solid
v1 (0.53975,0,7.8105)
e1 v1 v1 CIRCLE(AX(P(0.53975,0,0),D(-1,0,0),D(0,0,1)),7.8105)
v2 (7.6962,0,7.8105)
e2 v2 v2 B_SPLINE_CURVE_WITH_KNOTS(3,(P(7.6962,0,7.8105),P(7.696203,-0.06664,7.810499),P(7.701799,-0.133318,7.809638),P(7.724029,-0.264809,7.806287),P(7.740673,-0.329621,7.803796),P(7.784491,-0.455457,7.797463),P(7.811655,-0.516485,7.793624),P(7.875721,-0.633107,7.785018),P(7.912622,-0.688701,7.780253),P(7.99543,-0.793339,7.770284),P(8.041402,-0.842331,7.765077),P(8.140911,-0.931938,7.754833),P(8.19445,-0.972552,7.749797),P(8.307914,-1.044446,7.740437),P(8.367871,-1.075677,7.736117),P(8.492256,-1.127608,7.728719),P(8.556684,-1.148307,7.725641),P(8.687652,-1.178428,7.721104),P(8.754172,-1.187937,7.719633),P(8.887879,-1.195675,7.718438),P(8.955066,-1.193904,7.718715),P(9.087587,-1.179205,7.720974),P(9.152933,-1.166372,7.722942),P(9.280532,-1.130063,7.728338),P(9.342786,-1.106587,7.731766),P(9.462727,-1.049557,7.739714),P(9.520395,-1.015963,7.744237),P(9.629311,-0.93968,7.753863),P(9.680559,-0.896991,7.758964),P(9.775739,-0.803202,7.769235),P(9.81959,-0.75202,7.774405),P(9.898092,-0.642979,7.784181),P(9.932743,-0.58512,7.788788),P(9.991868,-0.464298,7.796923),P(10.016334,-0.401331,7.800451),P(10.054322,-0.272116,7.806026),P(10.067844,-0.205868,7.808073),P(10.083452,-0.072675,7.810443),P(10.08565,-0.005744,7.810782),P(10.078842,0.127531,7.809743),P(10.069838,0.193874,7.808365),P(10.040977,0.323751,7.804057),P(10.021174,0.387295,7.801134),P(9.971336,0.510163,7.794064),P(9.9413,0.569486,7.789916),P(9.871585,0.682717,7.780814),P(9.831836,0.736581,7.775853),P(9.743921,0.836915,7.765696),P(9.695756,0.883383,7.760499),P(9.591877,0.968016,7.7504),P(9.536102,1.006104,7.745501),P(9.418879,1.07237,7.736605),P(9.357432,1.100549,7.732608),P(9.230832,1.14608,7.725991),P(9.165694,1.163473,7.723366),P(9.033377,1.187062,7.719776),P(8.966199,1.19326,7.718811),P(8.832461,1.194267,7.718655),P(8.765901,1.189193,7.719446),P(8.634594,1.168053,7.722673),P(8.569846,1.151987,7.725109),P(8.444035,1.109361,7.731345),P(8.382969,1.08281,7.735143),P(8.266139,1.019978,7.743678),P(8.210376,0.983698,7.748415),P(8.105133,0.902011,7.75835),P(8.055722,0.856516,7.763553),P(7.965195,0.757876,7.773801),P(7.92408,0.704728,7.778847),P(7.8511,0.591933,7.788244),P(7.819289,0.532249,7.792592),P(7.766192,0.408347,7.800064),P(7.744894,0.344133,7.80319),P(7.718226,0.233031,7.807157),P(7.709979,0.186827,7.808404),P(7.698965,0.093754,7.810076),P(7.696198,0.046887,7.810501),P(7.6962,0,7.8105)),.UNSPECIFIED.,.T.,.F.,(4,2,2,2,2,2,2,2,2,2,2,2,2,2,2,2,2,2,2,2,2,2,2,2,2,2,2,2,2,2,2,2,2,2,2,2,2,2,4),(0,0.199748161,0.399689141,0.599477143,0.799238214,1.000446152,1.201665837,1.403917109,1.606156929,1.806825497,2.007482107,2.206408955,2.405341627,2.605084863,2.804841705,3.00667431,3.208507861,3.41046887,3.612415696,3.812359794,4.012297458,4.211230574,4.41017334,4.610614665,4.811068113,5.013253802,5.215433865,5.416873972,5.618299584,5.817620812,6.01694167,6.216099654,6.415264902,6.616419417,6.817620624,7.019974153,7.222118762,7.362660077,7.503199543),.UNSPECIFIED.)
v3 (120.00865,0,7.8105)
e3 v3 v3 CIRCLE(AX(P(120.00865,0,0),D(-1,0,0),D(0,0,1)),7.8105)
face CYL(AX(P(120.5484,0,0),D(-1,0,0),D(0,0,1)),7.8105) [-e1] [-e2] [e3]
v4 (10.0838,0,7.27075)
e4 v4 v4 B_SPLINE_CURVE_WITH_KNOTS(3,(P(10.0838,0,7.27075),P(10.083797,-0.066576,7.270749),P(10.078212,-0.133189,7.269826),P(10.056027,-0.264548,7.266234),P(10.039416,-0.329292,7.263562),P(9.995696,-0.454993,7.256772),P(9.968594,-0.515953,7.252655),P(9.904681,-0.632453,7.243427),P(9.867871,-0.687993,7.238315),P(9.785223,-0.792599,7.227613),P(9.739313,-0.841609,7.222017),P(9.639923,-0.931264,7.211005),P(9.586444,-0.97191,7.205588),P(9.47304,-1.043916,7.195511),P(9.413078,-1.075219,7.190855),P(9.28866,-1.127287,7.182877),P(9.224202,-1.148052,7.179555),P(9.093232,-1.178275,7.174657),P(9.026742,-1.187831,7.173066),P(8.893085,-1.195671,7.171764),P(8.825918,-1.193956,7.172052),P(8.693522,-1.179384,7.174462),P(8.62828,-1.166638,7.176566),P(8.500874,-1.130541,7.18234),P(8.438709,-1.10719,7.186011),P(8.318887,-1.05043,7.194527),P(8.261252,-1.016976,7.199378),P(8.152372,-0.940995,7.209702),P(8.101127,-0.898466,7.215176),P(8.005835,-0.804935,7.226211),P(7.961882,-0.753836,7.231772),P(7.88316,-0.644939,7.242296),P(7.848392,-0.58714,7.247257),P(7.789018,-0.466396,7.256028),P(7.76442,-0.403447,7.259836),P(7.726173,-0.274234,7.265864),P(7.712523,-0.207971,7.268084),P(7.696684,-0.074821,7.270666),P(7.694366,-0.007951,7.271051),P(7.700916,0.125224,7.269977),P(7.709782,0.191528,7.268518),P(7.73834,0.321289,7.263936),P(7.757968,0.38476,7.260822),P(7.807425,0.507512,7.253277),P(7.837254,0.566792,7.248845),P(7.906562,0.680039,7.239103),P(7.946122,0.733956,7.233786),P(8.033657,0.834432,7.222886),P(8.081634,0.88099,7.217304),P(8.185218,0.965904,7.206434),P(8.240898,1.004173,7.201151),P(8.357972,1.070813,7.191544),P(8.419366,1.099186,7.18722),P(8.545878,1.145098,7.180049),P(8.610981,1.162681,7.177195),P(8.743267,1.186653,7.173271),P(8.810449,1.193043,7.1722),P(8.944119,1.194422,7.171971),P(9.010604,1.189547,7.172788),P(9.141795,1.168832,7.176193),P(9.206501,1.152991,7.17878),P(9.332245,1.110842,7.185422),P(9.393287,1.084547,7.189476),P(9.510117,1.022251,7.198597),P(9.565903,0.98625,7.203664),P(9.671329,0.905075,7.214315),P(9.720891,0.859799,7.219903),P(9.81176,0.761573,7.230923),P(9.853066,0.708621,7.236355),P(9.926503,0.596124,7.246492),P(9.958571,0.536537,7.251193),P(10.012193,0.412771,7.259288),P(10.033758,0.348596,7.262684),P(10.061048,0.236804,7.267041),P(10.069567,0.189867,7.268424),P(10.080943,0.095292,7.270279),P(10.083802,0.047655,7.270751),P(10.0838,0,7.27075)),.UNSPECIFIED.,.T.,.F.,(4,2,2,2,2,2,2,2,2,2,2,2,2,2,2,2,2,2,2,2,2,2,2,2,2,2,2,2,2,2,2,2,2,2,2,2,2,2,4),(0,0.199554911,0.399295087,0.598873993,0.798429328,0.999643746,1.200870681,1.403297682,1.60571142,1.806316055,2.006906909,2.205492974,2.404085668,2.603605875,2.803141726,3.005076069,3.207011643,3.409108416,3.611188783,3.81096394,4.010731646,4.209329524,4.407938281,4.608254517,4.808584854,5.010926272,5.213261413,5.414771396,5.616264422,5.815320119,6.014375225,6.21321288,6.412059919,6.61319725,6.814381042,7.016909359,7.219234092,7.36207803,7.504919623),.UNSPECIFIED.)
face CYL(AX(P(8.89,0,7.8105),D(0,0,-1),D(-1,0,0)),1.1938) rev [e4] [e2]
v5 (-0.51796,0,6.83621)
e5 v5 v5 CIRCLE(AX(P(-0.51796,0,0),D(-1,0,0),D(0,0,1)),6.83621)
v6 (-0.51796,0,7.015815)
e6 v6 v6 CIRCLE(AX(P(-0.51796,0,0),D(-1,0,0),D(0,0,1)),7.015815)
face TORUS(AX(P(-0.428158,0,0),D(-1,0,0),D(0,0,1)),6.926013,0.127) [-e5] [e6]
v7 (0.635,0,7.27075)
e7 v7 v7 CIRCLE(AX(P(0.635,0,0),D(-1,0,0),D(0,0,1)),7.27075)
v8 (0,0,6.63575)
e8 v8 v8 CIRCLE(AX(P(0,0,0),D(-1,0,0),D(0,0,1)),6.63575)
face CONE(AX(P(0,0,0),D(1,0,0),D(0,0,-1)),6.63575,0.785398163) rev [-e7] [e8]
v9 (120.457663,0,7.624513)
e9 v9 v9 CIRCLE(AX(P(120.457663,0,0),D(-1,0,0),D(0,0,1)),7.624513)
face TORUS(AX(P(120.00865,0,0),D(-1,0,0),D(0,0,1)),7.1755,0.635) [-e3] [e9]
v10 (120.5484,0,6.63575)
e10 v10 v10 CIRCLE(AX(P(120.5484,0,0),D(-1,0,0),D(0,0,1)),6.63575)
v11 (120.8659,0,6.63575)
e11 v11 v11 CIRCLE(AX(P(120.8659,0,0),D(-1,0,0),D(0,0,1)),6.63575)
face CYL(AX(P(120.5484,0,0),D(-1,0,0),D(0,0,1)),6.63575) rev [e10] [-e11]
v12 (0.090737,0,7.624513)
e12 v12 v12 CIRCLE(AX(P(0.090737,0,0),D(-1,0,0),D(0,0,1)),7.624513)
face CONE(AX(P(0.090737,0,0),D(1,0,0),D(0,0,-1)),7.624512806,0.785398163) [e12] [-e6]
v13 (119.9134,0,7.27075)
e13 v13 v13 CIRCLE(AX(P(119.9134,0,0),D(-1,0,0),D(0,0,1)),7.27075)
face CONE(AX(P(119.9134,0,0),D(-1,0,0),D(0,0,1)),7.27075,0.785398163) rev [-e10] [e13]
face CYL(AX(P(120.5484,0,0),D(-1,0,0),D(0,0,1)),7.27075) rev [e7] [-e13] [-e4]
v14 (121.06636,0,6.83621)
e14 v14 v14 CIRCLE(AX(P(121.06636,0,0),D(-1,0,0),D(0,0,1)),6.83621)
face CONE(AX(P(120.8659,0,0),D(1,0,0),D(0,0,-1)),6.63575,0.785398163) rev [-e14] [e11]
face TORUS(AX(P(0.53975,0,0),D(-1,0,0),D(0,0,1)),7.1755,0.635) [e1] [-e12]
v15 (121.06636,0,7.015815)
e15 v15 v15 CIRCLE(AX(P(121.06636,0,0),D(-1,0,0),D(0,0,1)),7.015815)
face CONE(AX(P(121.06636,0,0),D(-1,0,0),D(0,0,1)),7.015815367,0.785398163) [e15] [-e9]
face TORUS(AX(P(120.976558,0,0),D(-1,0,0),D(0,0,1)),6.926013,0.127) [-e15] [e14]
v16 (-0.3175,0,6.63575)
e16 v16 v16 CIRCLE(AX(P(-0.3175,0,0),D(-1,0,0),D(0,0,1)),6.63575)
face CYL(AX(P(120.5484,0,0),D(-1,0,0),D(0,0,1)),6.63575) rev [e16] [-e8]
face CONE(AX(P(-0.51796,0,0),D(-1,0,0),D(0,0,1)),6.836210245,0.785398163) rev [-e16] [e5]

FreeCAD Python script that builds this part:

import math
import FreeCAD as App
import Part
import Sketcher

V = App.Vector
Q = App.Units.Quantity

doc = App.newDocument("Part")
body = doc.addObject("PartDesign::Body", "Body")

# Sketch on XY plane
sketch1 = doc.addObject("Sketcher::SketchObject", "Sketch")
body.addObject(sketch1)
sketch1.AttachmentSupport = (doc.XY_Plane, [""])
sketch1.MapMode = "FlatFace"
sketch1.addGeometry(Part.LineSegment(V(-0.52, 6.84, 0), V(-0.32, 6.64, 0)), False)
sketch1.addGeometry(Part.LineSegment(V(-0.32, 6.64, 0), V(0, 6.64, 0)), False)
sketch1.addGeometry(Part.LineSegment(V(0, 6.64, 0), V(0.64, 7.27, 0)), False)
sketch1.addGeometry(Part.LineSegment(V(0.64, 7.27, 0), V(119.91, 7.27, 0)), False)
sketch1.addGeometry(Part.LineSegment(V(119.91, 7.27, 0), V(120.55, 6.64, 0)), False)
sketch1.addGeometry(Part.LineSegment(V(120.55, 6.64, 0), V(120.87, 6.64, 0)), False)
sketch1.addGeometry(Part.LineSegment(V(120.87, 6.64, 0), V(121.07, 6.84, 0)), False)
sketch1.addGeometry(Part.ArcOfCircle(Part.Circle(V(120.98, 6.93, 0), V(0, 0, 1), 0.13), math.radians(-45), math.radians(45)), False)
sketch1.addGeometry(Part.LineSegment(V(121.07, 7.02, 0), V(120.46, 7.62, 0)), False)
sketch1.addGeometry(Part.ArcOfCircle(Part.Circle(V(120.01, 7.18, 0), V(0, 0, 1), 0.63), math.radians(45), math.radians(90)), False)
sketch1.addGeometry(Part.LineSegment(V(120.01, 7.81, 0), V(0.54, 7.81, 0)), False)
sketch1.addGeometry(Part.ArcOfCircle(Part.Circle(V(0.54, 7.18, 0), V(0, 0, 1), 0.63), math.radians(90), math.radians(135)), False)
sketch1.addGeometry(Part.LineSegment(V(0.09, 7.62, 0), V(-0.52, 7.02, 0)), False)
sketch1.addGeometry(Part.ArcOfCircle(Part.Circle(V(-0.43, 6.93, 0), V(0, 0, 1), 0.13), math.radians(135), math.radians(225)), False)
sketch1.addConstraint(Sketcher.Constraint("Coincident", 0, 2, 1, 1))
sketch1.addConstraint(Sketcher.Constraint("Coincident", 1, 2, 2, 1))
sketch1.addConstraint(Sketcher.Constraint("Coincident", 2, 2, 3, 1))
sketch1.addConstraint(Sketcher.Constraint("Coincident", 3, 2, 4, 1))
sketch1.addConstraint(Sketcher.Constraint("Coincident", 4, 2, 5, 1))
sketch1.addConstraint(Sketcher.Constraint("Coincident", 5, 2, 6, 1))
sketch1.addConstraint(Sketcher.Constraint("Tangent", 6, 2, 7, 1))
sketch1.addConstraint(Sketcher.Constraint("Tangent", 7, 2, 8, 1))
sketch1.addConstraint(Sketcher.Constraint("Tangent", 8, 2, 9, 1))
sketch1.addConstraint(Sketcher.Constraint("Tangent", 9, 2, 10, 1))
sketch1.addConstraint(Sketcher.Constraint("Tangent", 10, 2, 11, 1))
sketch1.addConstraint(Sketcher.Constraint("Tangent", 11, 2, 12, 1))
sketch1.addConstraint(Sketcher.Constraint("Tangent", 12, 2, 13, 1))
sketch1.addConstraint(Sketcher.Constraint("Tangent", 13, 2, 0, 1))
sketch1.addConstraint(Sketcher.Constraint("Horizontal", 1))
sketch1.addConstraint(Sketcher.Constraint("Horizontal", 3))
sketch1.addConstraint(Sketcher.Constraint("Horizontal", 5))
sketch1.addConstraint(Sketcher.Constraint("Horizontal", 10))
sketch1.addConstraint(Sketcher.Constraint("Equal", 9, 11))
sketch1.addConstraint(Sketcher.Constraint("Equal", 7, 13))
sketch1.addConstraint(Sketcher.Constraint("PointOnObject", 1, 2, -2))
sketch1.addConstraint(Sketcher.Constraint("Perpendicular", 0, 2))
sketch1.addConstraint(Sketcher.Constraint("Perpendicular", 2, 4))
sketch1.addConstraint(Sketcher.Constraint("Perpendicular", 4, 6))
sketch1.addConstraint(Sketcher.Constraint("Perpendicular", 6, 8))
sketch1.addConstraint(Sketcher.Constraint("Perpendicular", 8, 12))
sketch1.addConstraint(Sketcher.Constraint("Horizontal", 7, 3, 13, 3))
sketch1.addConstraint(Sketcher.Constraint("Horizontal", 1, 2, 4, 2))
sketch1.addConstraint(Sketcher.Constraint("Horizontal", 8, 2, 11, 2))
sketch1.addConstraint(Sketcher.Constraint("Equal", 1, 5))
sketch1.addConstraint(Sketcher.Constraint("Radius", 7, Q("0.005 in")))
sketch1.addConstraint(Sketcher.Constraint("Radius", 9, Q("0.025 in")))
sketch1.addConstraint(Sketcher.Constraint("DistanceX", 3, 1, 3, 2, Q("4.696 in")))
sketch1.addConstraint(Sketcher.Constraint("DistanceX", 1, 1, 1, 2, Q("0.0125 in")))
sketch1.addConstraint(Sketcher.Constraint("DistanceX", 10, 2, 10, 1, Q("4.7035 in")))
sketch1.addConstraint(Sketcher.Constraint("DistanceX", -1, 1, 2, 2, Q("0.025 in")))
sketch1.addConstraint(Sketcher.Constraint("DistanceY", -1, 1, 9, 3, Q("0.2825 in")))
sketch1.addConstraint(Sketcher.Constraint("DistanceY", 7, 3, 8, 2, Q("0.0275 in")))
revolution = doc.addObject("PartDesign::Revolution", "Revolution")
body.addObject(revolution)
revolution.Profile = sketch1
revolution.ReferenceAxis = (sketch1, ["H_Axis"])
revolution.Angle = 360

# Sketch on XY plane
sketch2 = doc.addObject("Sketcher::SketchObject", "Sketch001")
body.addObject(sketch2)
sketch2.AttachmentSupport = (doc.XY_Plane, [""])
sketch2.MapMode = "FlatFace"
sketch2.addGeometry(Part.Circle(V(8.9, 0, 0), V(0, 0, 1), 1.2), False)
sketch2.addConstraint(Sketcher.Constraint("PointOnObject", 0, 3, -1))
sketch2.addConstraint(Sketcher.Constraint("Diameter", 0, Q("0.094 in")))
sketch2.addConstraint(Sketcher.Constraint("DistanceX", -1, 1, 0, 3, Q("0.35 in")))
pocket1 = doc.addObject("PartDesign::Pocket", "Pocket")
body.addObject(pocket1)
pocket1.Profile = sketch2
pocket1.Length = Q("0.3075 in")
pocket1.Reversed = True

doc.recompute()
